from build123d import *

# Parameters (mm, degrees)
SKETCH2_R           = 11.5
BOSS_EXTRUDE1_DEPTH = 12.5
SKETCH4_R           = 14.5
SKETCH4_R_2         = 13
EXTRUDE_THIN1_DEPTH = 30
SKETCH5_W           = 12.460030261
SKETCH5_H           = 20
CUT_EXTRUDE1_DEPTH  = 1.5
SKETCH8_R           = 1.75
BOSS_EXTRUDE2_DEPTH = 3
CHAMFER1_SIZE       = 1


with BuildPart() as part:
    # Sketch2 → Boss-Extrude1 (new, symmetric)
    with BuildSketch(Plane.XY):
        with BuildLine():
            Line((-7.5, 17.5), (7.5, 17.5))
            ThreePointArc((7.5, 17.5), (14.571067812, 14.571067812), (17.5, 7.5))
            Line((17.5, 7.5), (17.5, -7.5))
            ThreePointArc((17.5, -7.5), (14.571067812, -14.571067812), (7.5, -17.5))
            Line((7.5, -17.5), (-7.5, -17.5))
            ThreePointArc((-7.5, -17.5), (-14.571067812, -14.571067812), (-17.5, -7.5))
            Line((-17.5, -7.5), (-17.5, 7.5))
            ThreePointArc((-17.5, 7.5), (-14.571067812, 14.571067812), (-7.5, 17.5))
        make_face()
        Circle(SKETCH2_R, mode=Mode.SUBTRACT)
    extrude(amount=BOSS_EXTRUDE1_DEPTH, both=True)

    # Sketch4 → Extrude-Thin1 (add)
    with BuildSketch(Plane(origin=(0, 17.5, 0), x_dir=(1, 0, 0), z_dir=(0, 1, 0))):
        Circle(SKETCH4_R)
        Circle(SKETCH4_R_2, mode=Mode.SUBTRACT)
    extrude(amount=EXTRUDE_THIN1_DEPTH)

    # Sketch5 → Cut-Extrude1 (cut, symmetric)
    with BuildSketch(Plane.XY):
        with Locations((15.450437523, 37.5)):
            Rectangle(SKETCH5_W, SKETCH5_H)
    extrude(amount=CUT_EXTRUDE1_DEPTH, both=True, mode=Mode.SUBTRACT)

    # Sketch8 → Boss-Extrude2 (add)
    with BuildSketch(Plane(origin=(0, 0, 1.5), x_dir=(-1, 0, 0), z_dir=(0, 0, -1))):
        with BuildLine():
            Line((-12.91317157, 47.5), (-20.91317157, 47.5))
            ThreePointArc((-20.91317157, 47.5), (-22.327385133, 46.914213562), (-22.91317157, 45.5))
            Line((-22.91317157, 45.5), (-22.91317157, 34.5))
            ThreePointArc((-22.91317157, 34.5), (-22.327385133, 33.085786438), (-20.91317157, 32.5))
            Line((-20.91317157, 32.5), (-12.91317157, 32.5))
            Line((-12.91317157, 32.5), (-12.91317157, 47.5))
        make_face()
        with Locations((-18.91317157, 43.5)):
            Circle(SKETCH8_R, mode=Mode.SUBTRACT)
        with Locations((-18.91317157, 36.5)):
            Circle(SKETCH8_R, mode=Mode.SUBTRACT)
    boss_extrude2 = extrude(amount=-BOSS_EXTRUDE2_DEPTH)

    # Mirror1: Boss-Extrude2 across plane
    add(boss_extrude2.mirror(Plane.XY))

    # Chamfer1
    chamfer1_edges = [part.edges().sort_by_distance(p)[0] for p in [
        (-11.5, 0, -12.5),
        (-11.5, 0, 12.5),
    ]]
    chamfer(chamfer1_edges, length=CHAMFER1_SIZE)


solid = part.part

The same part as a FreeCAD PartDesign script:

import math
import FreeCAD as App
import Part
import Sketcher

V = App.Vector


def edges_at(feature, points):
    """Names of the edges that pass closest to the given points."""
    edges = feature.Shape.Edges
    near = lambda p: min(range(len(edges)), key=lambda i: edges[i].distToShape(Part.Vertex(*p))[0])
    return sorted({f"Edge{near(p) + 1}" for p in points})


def add_polygon(sketch, points):
    """Adds a closed chain of lines whose ends are joined by coincident constraints."""
    first, n = sketch.GeometryCount, len(points)
    for a, b in zip(points, points[1:] + points[:1]):
        sketch.addGeometry(Part.LineSegment(App.Vector(*a, 0), App.Vector(*b, 0)), False)
    for i in range(n):
        sketch.addConstraint(Sketcher.Constraint("Coincident", first + i, 2, first + (i + 1) % n, 1))

doc = App.newDocument("Part")
params = doc.addObject("Spreadsheet::Sheet", "Params")
for row, (alias, value) in enumerate([
    ("sketch1_diameter", "23 mm"),
    ("sketch1_radius", "10 mm"),
    ("sketch1_width", "15 mm"),
    ("pad1_length", "25 mm"),
    ("sketch2_diameter", "29 mm"),
    ("sketch2_diameter2", "26 mm"),
    ("pad2_length", "30 mm"),
    ("sketch3_height", "20 mm"),
    ("pocket1_length", "3 mm"),
    ("sketch4_radius", "2 mm"),
    ("sketch4_diameter", "3.5 mm"),
    ("sketch4_width", "8 mm"),
    ("sketch4_height", "11 mm"),
    ("pad3_length", "3 mm"),
    ("chamfer_size", "1 mm"),
], start=1):
    params.set(f"A{row}", alias)
    params.set(f"B{row}", "=" + value)
    params.setAlias(f"B{row}", alias)

body = doc.addObject("PartDesign::Body", "Body")

sketch1 = body.newObject("Sketcher::SketchObject", "Sketch")
sketch1.AttachmentSupport = (doc.getObject("XY_Plane"), [""])
sketch1.MapMode = "FlatFace"
sketch1.addGeometry([
    Part.LineSegment(V(8, 18, 0), V(-8, 18, 0)),
    Part.ArcOfCircle(Part.Circle(V(-8, 8, 0), V(0, 0, 1), 10), math.radians(90), math.radians(180)),
    Part.LineSegment(V(-18, 8, 0), V(-18, -8, 0)),
    Part.ArcOfCircle(Part.Circle(V(-8, -8, 0), V(0, 0, 1), 10), math.radians(180), math.radians(270)),
    Part.LineSegment(V(-8, -18, 0), V(8, -18, 0)),
    Part.ArcOfCircle(Part.Circle(V(8, -8, 0), V(0, 0, 1), 10), math.radians(-90), math.radians(0)),
    Part.LineSegment(V(18, -8, 0), V(18, 8, 0)),
    Part.ArcOfCircle(Part.Circle(V(8, 8, 0), V(0, 0, 1), 10), math.radians(0), math.radians(90)),
    Part.Circle(V(0, 0, 0), V(0, 0, 1), 12),
], False)
sketch1.addConstraint([
    Sketcher.Constraint("Tangent", 0, 2, 1, 1),
    Sketcher.Constraint("Tangent", 1, 2, 2, 1),
    Sketcher.Constraint("Tangent", 2, 2, 3, 1),
    Sketcher.Constraint("Tangent", 3, 2, 4, 1),
    Sketcher.Constraint("Tangent", 4, 2, 5, 1),
    Sketcher.Constraint("Tangent", 5, 2, 6, 1),
    Sketcher.Constraint("Tangent", 6, 2, 7, 1),
    Sketcher.Constraint("Tangent", 7, 2, 0, 1),
    Sketcher.Constraint("Horizontal", 0),
    Sketcher.Constraint("Vertical", 2),
    Sketcher.Constraint("Horizontal", 4),
    Sketcher.Constraint("Vertical", 6),
    Sketcher.Constraint("Coincident", 8, 3, -1, 1),
    Sketcher.Constraint("Equal", 1, 3),
    Sketcher.Constraint("Equal", 3, 5),
    Sketcher.Constraint("Equal", 5, 7),
    Sketcher.Constraint("Symmetric", 1, 3, 5, 3, -1, 1),
    Sketcher.Constraint("Equal", 4, 2),
    Sketcher.Constraint("Diameter", 8, 23.0),
    Sketcher.Constraint("Radius", 1, 10.0),
    Sketcher.Constraint("DistanceX", 0, 2, 0, 1, 15.0),
])
sketch1.setExpression("Constraints[18]", "Params.sketch1_diameter")
sketch1.setExpression("Constraints[19]", "Params.sketch1_radius")
sketch1.setExpression("Constraints[20]", "Params.sketch1_width")
pad1 = body.newObject("PartDesign::Pad", "Pad")
pad1.Profile = sketch1
pad1.setExpression("Length", "Params.pad1_length")
pad1.Midplane = True

sketch2 = body.newObject("Sketcher::SketchObject", "Sketch001")
sketch2.AttachmentSupport = (doc.getObject("XZ_Plane"), [""])
sketch2.MapMode = "FlatFace"
sketch2.AttachmentOffset = App.Placement(V(0, 0, -17.5), App.Rotation())
sketch2.addGeometry([
    Part.Circle(V(0, 0, 0), V(0, 0, 1), 14),
    Part.Circle(V(0, 0, 0), V(0, 0, 1), 13),
], False)
sketch2.addConstraint([
    Sketcher.Constraint("Coincident", 0, 3, -1, 1),
    Sketcher.Constraint("Coincident", 1, 3, -1, 1),
    Sketcher.Constraint("Diameter", 0, 29.0),
    Sketcher.Constraint("Diameter", 1, 26.0),
])
sketch2.setExpression("Constraints[2]", "Params.sketch2_diameter")
sketch2.setExpression("Constraints[3]", "Params.sketch2_diameter2")
pad2 = body.newObject("PartDesign::Pad", "Pad001")
pad2.Profile = sketch2
pad2.setExpression("Length", "Params.pad2_length")
pad2.Reversed = True

sketch3 = body.newObject("Sketcher::SketchObject", "Sketch002")
sketch3.AttachmentSupport = (doc.getObject("XY_Plane"), [""])
sketch3.MapMode = "FlatFace"
add_polygon(sketch3, [(9, 48), (9, 28), (22, 28), (22, 48)])
sketch3.addConstraint([
    Sketcher.Constraint("Vertical", 0),
    Sketcher.Constraint("Horizontal", 1),
    Sketcher.Constraint("Vertical", 2),
    Sketcher.Constraint("Horizontal", 3),
    Sketcher.Constraint("DistanceY", 0, 2, 0, 1, 20.0),
    Sketcher.Constraint("DistanceY", -1, 1, 0, 2, 27.5),
    Sketcher.Constraint("DistanceX", 1, 1, 1, 2, 12.46003),
    Sketcher.Constraint("DistanceX", -1, 1, 0, 2, 9.220422),
])
sketch3.setExpression("Constraints[8]", "Params.sketch3_height")
pocket1 = body.newObject("PartDesign::Pocket", "Pocket")
pocket1.Profile = sketch3
pocket1.setExpression("Length", "Params.pocket1_length")
pocket1.Midplane = True

sketch4 = body.newObject("Sketcher::SketchObject", "Sketch003")
sketch4.AttachmentSupport = (doc.getObject("XY_Plane"), [""])
sketch4.MapMode = "FlatFace"
sketch4.AttachmentOffset = App.Placement(V(0, 0, 1.5), App.Rotation())
sketch4.addGeometry([
    Part.LineSegment(V(12.9, 47.5, 0), V(20.9, 47.5, 0)),
    Part.ArcOfCircle(Part.Circle(V(20.9, 45.5, 0), V(0, 0, 1), 2), math.radians(0), math.radians(90)),
    Part.LineSegment(V(22.9, 45.5, 0), V(22.9, 34.5, 0)),
    Part.ArcOfCircle(Part.Circle(V(20.9, 34.5, 0), V(0, 0, 1), 2), math.radians(-90), math.radians(0)),
    Part.LineSegment(V(20.9, 32.5, 0), V(12.9, 32.5, 0)),
    Part.LineSegment(V(12.9, 32.5, 0), V(12.9, 47.5, 0)),
    Part.Circle(V(18.9, 36.5, 0), V(0, 0, 1), 1.8),
    Part.Circle(V(18.9, 43.5, 0), V(0, 0, 1), 1.8),
], False)
sketch4.addConstraint([
    Sketcher.Constraint("Tangent", 0, 2, 1, 2),
    Sketcher.Constraint("Tangent", 1, 1, 2, 1),
    Sketcher.Constraint("Tangent", 2, 2, 3, 2),
    Sketcher.Constraint("Tangent", 3, 1, 4, 1),
    Sketcher.Constraint("Coincident", 4, 2, 5, 1),
    Sketcher.Constraint("Coincident", 5, 2, 0, 1),
    Sketcher.Constraint("Horizontal", 0),
    Sketcher.Constraint("Vertical", 2),
    Sketcher.Constraint("Horizontal", 4),
    Sketcher.Constraint("Vertical", 5),
    Sketcher.Constraint("Equal", 1, 3),
    Sketcher.Constraint("Equal", 6, 7),
    Sketcher.Constraint("Vertical", 6, 3, 7, 3),
    Sketcher.Constraint("Radius", 1, 2.0),
    Sketcher.Constraint("Diameter", 6, 3.5),
    Sketcher.Constraint("DistanceX", 0, 1, 0, 2, 8.0),
    Sketcher.Constraint("DistanceY", 2, 2, 2, 1, 11.0),
    Sketcher.Constraint("DistanceX", 6, 3, 3, 3, 2.0),
    Sketcher.Constraint("DistanceY", 3, 3, 6, 3, 2.0),
    Sketcher.Constraint("DistanceY", 7, 3, 1, 3, 2.0),
    Sketcher.Constraint("DistanceY", -1, 1, 1, 3, 45.5),
    Sketcher.Constraint("DistanceX", -1, 1, 1, 3, 20.913172),
])
sketch4.setExpression("Constraints[13]", "Params.sketch4_radius")
sketch4.setExpression("Constraints[14]", "Params.sketch4_diameter")
sketch4.setExpression("Constraints[15]", "Params.sketch4_width")
sketch4.setExpression("Constraints[16]", "Params.sketch4_height")
pad3 = body.newObject("PartDesign::Pad", "Pad002")
pad3.Profile = sketch4
pad3.setExpression("Length", "Params.pad3_length")
doc.recompute()

mirrored = body.newObject("PartDesign::Mirrored", "Mirrored")
mirrored.Originals = [pad3]
mirrored.MirrorPlane = (doc.getObject("XY_Plane"), [""])
body.Tip = mirrored
doc.recompute()

chamfer = body.newObject("PartDesign::Chamfer", "Chamfer")
chamfer.Base = (mirrored, edges_at(mirrored, [(-11.5, 0, -12.5), (-11.5, 0, 12.5)]))
chamfer.setExpression("Size", "Params.chamfer_size")

doc.recompute()
